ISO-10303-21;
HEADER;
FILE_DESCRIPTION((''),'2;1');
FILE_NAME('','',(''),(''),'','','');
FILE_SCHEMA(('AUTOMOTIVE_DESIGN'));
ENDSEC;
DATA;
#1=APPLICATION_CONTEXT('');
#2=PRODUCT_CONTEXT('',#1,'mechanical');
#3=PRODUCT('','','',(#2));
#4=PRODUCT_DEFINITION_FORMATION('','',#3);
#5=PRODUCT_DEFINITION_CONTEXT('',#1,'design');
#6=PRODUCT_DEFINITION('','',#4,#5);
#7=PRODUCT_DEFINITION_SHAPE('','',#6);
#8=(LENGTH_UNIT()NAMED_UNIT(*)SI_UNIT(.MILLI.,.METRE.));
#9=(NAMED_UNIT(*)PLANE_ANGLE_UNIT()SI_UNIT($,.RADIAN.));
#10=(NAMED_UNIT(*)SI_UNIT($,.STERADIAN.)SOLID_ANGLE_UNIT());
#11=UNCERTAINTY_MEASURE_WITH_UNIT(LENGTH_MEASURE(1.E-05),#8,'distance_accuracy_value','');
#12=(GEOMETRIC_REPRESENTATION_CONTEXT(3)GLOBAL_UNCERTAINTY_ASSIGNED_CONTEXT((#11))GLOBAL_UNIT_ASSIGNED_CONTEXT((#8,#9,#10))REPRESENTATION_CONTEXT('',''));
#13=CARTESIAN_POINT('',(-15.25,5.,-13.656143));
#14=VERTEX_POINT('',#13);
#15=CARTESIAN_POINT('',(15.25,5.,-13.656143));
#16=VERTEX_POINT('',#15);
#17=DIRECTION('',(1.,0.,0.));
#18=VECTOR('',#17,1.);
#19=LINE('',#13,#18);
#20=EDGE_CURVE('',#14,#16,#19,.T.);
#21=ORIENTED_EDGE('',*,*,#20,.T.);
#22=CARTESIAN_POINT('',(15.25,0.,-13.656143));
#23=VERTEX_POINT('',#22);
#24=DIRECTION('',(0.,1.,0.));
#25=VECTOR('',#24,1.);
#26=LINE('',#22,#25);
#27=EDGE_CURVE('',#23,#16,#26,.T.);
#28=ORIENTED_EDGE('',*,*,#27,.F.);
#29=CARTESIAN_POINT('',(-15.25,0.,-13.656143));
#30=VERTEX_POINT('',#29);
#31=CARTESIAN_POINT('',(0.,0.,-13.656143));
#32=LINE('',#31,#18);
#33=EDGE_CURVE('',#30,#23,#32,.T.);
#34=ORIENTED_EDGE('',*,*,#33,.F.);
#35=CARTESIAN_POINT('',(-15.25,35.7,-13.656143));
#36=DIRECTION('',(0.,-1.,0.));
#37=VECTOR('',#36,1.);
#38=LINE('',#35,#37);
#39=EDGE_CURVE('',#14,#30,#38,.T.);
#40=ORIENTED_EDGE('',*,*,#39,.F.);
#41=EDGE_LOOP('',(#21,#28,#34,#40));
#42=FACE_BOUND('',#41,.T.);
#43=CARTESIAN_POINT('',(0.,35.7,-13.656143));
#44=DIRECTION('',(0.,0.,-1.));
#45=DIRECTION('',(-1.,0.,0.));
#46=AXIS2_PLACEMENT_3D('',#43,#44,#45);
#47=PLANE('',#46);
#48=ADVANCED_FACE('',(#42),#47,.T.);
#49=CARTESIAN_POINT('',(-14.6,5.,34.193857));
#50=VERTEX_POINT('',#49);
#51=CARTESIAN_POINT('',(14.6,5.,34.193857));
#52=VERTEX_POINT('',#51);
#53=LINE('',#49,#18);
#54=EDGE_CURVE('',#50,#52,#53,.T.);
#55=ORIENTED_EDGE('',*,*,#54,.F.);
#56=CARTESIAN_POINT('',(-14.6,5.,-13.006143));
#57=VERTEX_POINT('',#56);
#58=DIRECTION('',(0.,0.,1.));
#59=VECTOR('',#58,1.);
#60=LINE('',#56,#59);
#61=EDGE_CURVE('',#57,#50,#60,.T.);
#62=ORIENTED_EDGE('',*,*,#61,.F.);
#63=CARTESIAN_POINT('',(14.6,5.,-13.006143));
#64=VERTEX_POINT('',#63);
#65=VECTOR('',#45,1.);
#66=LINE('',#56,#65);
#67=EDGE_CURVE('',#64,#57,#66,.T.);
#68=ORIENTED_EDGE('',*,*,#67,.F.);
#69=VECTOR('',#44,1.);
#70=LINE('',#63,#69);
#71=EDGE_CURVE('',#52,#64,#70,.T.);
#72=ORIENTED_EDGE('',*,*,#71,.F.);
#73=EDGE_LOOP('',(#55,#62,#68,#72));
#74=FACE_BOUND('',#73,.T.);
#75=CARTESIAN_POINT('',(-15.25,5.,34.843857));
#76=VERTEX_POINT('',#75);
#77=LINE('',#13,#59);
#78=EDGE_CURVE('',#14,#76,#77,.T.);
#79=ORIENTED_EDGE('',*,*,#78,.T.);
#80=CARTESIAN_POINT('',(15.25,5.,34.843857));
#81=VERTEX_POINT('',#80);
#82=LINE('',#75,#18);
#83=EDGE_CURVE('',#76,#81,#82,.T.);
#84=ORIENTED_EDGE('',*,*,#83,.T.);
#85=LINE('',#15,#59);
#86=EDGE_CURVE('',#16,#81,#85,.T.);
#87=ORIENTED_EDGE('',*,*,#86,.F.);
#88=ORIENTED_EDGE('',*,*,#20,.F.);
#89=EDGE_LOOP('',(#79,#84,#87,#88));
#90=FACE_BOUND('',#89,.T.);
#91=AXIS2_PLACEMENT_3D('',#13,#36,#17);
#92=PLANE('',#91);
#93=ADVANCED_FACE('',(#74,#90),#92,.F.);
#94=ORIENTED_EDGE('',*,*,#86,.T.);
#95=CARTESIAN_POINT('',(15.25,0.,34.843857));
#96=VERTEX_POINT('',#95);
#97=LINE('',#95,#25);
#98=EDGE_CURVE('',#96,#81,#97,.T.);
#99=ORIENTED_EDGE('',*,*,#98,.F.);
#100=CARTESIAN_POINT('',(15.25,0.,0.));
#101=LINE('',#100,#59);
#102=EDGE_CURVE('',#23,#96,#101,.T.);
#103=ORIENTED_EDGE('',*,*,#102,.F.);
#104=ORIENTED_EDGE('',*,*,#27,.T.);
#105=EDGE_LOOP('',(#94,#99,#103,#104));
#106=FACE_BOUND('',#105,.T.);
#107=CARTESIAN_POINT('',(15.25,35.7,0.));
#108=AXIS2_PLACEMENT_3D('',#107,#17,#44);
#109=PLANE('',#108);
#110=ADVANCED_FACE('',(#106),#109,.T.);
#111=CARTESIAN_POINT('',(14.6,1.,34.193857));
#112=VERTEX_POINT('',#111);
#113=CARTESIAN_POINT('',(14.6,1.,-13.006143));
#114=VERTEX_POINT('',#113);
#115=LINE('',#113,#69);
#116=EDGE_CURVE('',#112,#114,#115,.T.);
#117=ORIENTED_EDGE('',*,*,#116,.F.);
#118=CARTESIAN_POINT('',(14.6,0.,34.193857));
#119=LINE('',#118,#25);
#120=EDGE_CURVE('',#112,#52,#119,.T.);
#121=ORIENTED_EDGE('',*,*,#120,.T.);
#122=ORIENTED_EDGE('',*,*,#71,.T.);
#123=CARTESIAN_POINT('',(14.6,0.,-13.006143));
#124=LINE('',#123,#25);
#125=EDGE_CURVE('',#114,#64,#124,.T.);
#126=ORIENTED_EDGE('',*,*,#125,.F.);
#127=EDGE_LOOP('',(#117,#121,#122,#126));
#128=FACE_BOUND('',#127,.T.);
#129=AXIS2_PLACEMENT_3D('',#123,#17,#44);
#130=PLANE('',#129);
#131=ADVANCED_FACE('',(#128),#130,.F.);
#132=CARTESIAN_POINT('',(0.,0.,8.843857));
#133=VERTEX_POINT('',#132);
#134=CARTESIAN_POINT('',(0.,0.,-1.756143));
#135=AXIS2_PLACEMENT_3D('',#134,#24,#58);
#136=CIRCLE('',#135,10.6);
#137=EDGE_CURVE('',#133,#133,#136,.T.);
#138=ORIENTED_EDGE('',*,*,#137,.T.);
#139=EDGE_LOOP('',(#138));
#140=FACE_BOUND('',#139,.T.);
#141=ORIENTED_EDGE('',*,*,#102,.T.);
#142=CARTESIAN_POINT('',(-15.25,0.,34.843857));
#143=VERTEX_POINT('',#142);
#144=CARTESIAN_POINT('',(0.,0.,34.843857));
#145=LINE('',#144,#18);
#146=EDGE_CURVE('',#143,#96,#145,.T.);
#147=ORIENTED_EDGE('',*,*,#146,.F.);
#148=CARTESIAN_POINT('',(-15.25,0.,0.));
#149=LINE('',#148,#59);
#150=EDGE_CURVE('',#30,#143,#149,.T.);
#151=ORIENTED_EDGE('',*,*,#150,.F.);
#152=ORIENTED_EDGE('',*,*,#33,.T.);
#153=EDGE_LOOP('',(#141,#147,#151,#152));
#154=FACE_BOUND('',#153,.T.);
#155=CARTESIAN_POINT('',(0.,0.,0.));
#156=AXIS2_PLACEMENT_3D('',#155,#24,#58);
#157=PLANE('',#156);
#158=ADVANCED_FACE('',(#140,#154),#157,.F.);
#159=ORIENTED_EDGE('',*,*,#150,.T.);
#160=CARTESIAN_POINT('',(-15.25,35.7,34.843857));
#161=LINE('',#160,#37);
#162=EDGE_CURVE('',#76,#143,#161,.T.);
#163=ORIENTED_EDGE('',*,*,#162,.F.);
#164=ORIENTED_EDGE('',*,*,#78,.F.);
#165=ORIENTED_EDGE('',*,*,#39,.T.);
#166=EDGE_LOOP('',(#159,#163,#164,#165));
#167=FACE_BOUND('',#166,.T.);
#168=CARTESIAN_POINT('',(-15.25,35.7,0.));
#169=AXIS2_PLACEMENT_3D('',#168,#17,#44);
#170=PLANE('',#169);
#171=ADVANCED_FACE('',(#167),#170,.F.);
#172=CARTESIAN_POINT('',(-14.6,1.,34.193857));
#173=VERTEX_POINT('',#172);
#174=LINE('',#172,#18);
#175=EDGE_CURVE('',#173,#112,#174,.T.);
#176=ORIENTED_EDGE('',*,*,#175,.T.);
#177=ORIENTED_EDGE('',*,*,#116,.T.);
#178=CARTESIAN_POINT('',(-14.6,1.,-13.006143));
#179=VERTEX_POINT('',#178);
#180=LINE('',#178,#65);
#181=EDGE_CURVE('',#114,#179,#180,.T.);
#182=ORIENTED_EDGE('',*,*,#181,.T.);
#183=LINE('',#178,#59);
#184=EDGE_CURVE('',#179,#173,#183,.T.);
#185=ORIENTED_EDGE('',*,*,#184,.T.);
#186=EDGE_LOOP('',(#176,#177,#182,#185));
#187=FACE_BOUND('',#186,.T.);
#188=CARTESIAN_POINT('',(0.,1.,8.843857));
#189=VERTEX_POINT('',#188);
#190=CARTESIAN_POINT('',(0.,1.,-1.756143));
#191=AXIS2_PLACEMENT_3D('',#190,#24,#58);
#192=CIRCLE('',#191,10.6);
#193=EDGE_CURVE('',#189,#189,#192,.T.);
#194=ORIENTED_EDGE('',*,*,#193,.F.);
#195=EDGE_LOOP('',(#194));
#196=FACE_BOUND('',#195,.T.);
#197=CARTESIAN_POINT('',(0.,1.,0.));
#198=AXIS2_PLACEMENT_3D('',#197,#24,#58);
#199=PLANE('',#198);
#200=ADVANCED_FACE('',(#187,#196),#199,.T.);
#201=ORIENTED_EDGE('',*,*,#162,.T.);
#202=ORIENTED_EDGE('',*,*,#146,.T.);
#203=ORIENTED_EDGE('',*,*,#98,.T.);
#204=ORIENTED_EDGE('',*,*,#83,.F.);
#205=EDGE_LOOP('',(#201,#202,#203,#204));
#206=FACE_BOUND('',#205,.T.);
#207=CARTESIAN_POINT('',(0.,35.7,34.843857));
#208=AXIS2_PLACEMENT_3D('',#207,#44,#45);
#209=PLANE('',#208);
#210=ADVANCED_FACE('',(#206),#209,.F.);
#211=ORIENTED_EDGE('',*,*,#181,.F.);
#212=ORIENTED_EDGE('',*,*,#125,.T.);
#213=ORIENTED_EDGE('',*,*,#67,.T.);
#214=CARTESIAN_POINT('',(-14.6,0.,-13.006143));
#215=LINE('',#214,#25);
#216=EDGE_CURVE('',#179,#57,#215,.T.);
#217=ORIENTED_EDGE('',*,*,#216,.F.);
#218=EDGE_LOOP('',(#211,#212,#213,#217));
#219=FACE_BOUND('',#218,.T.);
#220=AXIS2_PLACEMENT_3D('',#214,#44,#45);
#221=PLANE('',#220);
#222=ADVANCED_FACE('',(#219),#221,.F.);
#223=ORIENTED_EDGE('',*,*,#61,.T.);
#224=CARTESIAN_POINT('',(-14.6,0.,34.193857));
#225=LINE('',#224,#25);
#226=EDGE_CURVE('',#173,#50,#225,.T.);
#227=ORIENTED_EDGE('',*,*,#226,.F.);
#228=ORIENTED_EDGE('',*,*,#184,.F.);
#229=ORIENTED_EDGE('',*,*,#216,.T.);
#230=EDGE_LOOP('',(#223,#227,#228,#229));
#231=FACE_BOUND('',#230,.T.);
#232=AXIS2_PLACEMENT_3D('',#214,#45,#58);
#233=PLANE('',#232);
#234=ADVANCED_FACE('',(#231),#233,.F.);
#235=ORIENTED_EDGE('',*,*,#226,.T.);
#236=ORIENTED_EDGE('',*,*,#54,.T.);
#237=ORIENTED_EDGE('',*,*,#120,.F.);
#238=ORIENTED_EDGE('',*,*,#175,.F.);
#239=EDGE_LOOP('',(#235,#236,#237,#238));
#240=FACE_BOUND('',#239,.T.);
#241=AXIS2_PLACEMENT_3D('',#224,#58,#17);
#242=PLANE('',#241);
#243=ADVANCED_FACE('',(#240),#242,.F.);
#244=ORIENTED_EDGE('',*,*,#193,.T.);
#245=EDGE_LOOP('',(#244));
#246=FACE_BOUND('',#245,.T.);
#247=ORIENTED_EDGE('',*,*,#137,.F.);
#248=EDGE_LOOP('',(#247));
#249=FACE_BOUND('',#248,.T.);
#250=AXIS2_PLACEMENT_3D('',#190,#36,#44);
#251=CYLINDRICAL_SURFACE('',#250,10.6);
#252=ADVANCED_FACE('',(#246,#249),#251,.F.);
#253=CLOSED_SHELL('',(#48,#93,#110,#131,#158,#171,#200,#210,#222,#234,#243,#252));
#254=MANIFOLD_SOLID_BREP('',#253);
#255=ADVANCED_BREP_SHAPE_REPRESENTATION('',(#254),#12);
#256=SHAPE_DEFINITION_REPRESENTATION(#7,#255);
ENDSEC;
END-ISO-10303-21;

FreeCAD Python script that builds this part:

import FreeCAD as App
import Part
import Sketcher


def add_polygon(sketch, points):
    """Adds a closed chain of lines whose ends are joined by coincident constraints."""
    first, n = sketch.GeometryCount, len(points)
    for a, b in zip(points, points[1:] + points[:1]):
        sketch.addGeometry(Part.LineSegment(App.Vector(*a, 0), App.Vector(*b, 0)), False)
    for i in range(n):
        sketch.addConstraint(Sketcher.Constraint("Coincident", first + i, 2, first + (i + 1) % n, 1))

doc = App.newDocument("Part")
body = doc.addObject("PartDesign::Body", "Body")

# Sketch on XZ plane
sketch1 = body.newObject("Sketcher::SketchObject", "Sketch")
sketch1.AttachmentSupport = (doc.getObject("XZ_Plane"), [""])
sketch1.MapMode = "FlatFace"
add_polygon(sketch1, [(-15, -14), (-15, 35), (46, 35), (46, -14)])  # lines 0-3
add_polygon(sketch1, [(14, 34), (-14, 34), (-14, -13), (14, -13)])  # lines 4-7
add_polygon(sketch1, [(44, 34), (15, 34), (15, -13), (44, -13)])  # lines 8-11
sketch1.addConstraint(Sketcher.Constraint("Vertical", 0))
sketch1.addConstraint(Sketcher.Constraint("Horizontal", 1))
sketch1.addConstraint(Sketcher.Constraint("Vertical", 2))
sketch1.addConstraint(Sketcher.Constraint("Horizontal", 3))
sketch1.addConstraint(Sketcher.Constraint("Horizontal", 4))
sketch1.addConstraint(Sketcher.Constraint("Vertical", 5))
sketch1.addConstraint(Sketcher.Constraint("Horizontal", 6))
sketch1.addConstraint(Sketcher.Constraint("Vertical", 7))
sketch1.addConstraint(Sketcher.Constraint("Horizontal", 8))
sketch1.addConstraint(Sketcher.Constraint("Vertical", 9))
sketch1.addConstraint(Sketcher.Constraint("Horizontal", 10))
sketch1.addConstraint(Sketcher.Constraint("Vertical", 11))
sketch1.addConstraint(Sketcher.Constraint("DistanceX", 1, 1, 1, 2, 61.4))
sketch1.addConstraint(Sketcher.Constraint("DistanceX", 4, 2, 4, 1, 28.5))
sketch1.addConstraint(Sketcher.Constraint("DistanceX", 8, 2, 8, 1, 28.9))
sketch1.addConstraint(Sketcher.Constraint("DistanceY", 0, 1, 0, 2, 48.5))
sketch1.addConstraint(Sketcher.Constraint("DistanceY", 5, 2, 5, 1, 46.5))
sketch1.addConstraint(Sketcher.Constraint("DistanceY", 9, 2, 9, 1, 46.9))
sketch1.addConstraint(Sketcher.Constraint("DistanceX", 0, 2, 4, 2, 1.0))
sketch1.addConstraint(Sketcher.Constraint("DistanceY", 4, 2, 0, 2, 1.0))
sketch1.addConstraint(Sketcher.Constraint("DistanceX", 7, 2, 8, 2, 1.0))
sketch1.addConstraint(Sketcher.Constraint("DistanceY", 7, 2, 8, 2, 0.2))
sketch1.addConstraint(Sketcher.Constraint("DistanceX", 0, 2, -1, 1, 15.25))
sketch1.addConstraint(Sketcher.Constraint("DistanceY", -1, 1, 0, 2, 34.843857))
pad1 = body.newObject("PartDesign::Pad", "Pad")
pad1.Profile = sketch1
pad1.Length = 35.7
pad1.Reversed = True

# Sketch on XZ plane
sketch2 = body.newObject("Sketcher::SketchObject", "Sketch001")
sketch2.AttachmentSupport = (doc.getObject("XZ_Plane"), [""])
sketch2.MapMode = "FlatFace"
sketch2.AttachmentOffset = App.Placement(App.Vector(0, 0, -35.7), App.Rotation())
add_polygon(sketch2, [(16, -14), (16, 35), (46, 35), (46, -14)])  # lines 0-3
sketch2.addConstraint(Sketcher.Constraint("Vertical", 0))
sketch2.addConstraint(Sketcher.Constraint("Horizontal", 1))
sketch2.addConstraint(Sketcher.Constraint("Vertical", 2))
sketch2.addConstraint(Sketcher.Constraint("Horizontal", 3))
sketch2.addConstraint(Sketcher.Constraint("DistanceX", 1, 1, 1, 2, 29.9))
sketch2.addConstraint(Sketcher.Constraint("DistanceY", 0, 1, 0, 2, 48.5))
sketch2.addConstraint(Sketcher.Constraint("DistanceX", -1, 1, 0, 2, 16.25))
sketch2.addConstraint(Sketcher.Constraint("DistanceY", -1, 1, 0, 2, 34.843857))
pocket1 = body.newObject("PartDesign::Pocket", "Pocket")
pocket1.Profile = sketch2
pocket1.Type = "ThroughAll"
pocket1.Reversed = True

# Sketch on XZ plane
sketch3 = body.newObject("Sketcher::SketchObject", "Sketch002")
sketch3.AttachmentSupport = (doc.getObject("XZ_Plane"), [""])
sketch3.MapMode = "FlatFace"
sketch3.AttachmentOffset = App.Placement(App.Vector(0, 0, -35.7), App.Rotation())
add_polygon(sketch3, [(-15, -13), (-15, 34), (15, 34), (15, -13)])  # lines 0-3
sketch3.addConstraint(Sketcher.Constraint("Vertical", 0))
sketch3.addConstraint(Sketcher.Constraint("Horizontal", 1))
sketch3.addConstraint(Sketcher.Constraint("Vertical", 2))
sketch3.addConstraint(Sketcher.Constraint("Horizontal", 3))
sketch3.addConstraint(Sketcher.Constraint("DistanceX", 1, 1, 1, 2, 29.2))
sketch3.addConstraint(Sketcher.Constraint("DistanceY", 0, 1, 0, 2, 47.2))
sketch3.addConstraint(Sketcher.Constraint("DistanceX", 0, 2, -1, 1, 14.6))
sketch3.addConstraint(Sketcher.Constraint("DistanceY", -1, 1, 0, 2, 34.193857))
pocket2 = body.newObject("PartDesign::Pocket", "Pocket001")
pocket2.Profile = sketch3
pocket2.Type = "ThroughAll"
pocket2.Reversed = True

# Sketch on XZ plane
sketch4 = body.newObject("Sketcher::SketchObject", "Sketch003")
sketch4.AttachmentSupport = (doc.getObject("XZ_Plane"), [""])
sketch4.MapMode = "FlatFace"
add_polygon(sketch4, [(-15, -13), (-15, 34), (15, 34), (15, -13)])  # lines 0-3
sketch4.addGeometry(Part.Circle(App.Vector(0, -2, 0), App.Vector(0, 0, 1), 11), False)  # 4
sketch4.addConstraint(Sketcher.Constraint("Vertical", 0))
sketch4.addConstraint(Sketcher.Constraint("Horizontal", 1))
sketch4.addConstraint(Sketcher.Constraint("Vertical", 2))
sketch4.addConstraint(Sketcher.Constraint("Horizontal", 3))
sketch4.addConstraint(Sketcher.Constraint("PointOnObject", 4, 3, -2))
sketch4.addConstraint(Sketcher.Constraint("Diameter", 4, 21.2))
sketch4.addConstraint(Sketcher.Constraint("DistanceX", 1, 1, 1, 2, 29.2))
sketch4.addConstraint(Sketcher.Constraint("DistanceY", 0, 1, 0, 2, 47.2))
sketch4.addConstraint(Sketcher.Constraint("DistanceX", 0, 2, -1, 1, 14.6))
sketch4.addConstraint(Sketcher.Constraint("DistanceY", 4, 3, 0, 2, 35.95))
sketch4.addConstraint(Sketcher.Constraint("DistanceY", 4, 3, -1, 1, 1.756143))
pad2 = body.newObject("PartDesign::Pad", "Pad001")
pad2.Profile = sketch4
pad2.Length = 1
pad2.Reversed = True

# Sketch on XZ plane
sketch5 = body.newObject("Sketcher::SketchObject", "Sketch004")
sketch5.AttachmentSupport = (doc.getObject("XZ_Plane"), [""])
sketch5.MapMode = "FlatFace"
sketch5.AttachmentOffset = App.Placement(App.Vector(0, 0, -35.7), App.Rotation())
add_polygon(sketch5, [(15.2, -13.7), (15.2, 34.8), (16.2, 34.8), (16.2, -13.7)])  # lines 0-3
sketch5.addConstraint(Sketcher.Constraint("Vertical", 0))
sketch5.addConstraint(Sketcher.Constraint("Horizontal", 1))
sketch5.addConstraint(Sketcher.Constraint("Vertical", 2))
sketch5.addConstraint(Sketcher.Constraint("Horizontal", 3))
sketch5.addConstraint(Sketcher.Constraint("DistanceX", 1, 1, 1, 2, 1.0))
sketch5.addConstraint(Sketcher.Constraint("DistanceY", 0, 1, 0, 2, 48.5))
sketch5.addConstraint(Sketcher.Constraint("DistanceX", -1, 1, 0, 2, 15.25))
sketch5.addConstraint(Sketcher.Constraint("DistanceY", -1, 1, 0, 2, 34.843857))
pocket3 = body.newObject("PartDesign::Pocket", "Pocket002")
pocket3.Profile = sketch5
pocket3.Type = "ThroughAll"
pocket3.Reversed = True

# Sketch on XY plane
sketch6 = body.newObject("Sketcher::SketchObject", "Sketch005")
sketch6.AttachmentSupport = (doc.getObject("XY_Plane"), [""])
sketch6.MapMode = "FlatFace"
sketch6.AttachmentOffset = App.Placement(App.Vector(0, 0, 34.843857), App.Rotation())
add_polygon(sketch6, [(-15, 36), (-15, 5), (15, 5), (15, 36)])  # lines 0-3
sketch6.addConstraint(Sketcher.Constraint("Vertical", 0))
sketch6.addConstraint(Sketcher.Constraint("Horizontal", 1))
sketch6.addConstraint(Sketcher.Constraint("Vertical", 2))
sketch6.addConstraint(Sketcher.Constraint("Horizontal", 3))
sketch6.addConstraint(Sketcher.Constraint("DistanceX", 1, 1, 1, 2, 30.5))
sketch6.addConstraint(Sketcher.Constraint("DistanceY", 0, 2, 0, 1, 30.7))
sketch6.addConstraint(Sketcher.Constraint("DistanceY", -1, 1, 0, 2, 5.0))
sketch6.addConstraint(Sketcher.Constraint("DistanceX", 0, 2, -1, 1, 15.25))
pocket4 = body.newObject("PartDesign::Pocket", "Pocket003")
pocket4.Profile = sketch6
pocket4.Type = "ThroughAll"

doc.recompute()
